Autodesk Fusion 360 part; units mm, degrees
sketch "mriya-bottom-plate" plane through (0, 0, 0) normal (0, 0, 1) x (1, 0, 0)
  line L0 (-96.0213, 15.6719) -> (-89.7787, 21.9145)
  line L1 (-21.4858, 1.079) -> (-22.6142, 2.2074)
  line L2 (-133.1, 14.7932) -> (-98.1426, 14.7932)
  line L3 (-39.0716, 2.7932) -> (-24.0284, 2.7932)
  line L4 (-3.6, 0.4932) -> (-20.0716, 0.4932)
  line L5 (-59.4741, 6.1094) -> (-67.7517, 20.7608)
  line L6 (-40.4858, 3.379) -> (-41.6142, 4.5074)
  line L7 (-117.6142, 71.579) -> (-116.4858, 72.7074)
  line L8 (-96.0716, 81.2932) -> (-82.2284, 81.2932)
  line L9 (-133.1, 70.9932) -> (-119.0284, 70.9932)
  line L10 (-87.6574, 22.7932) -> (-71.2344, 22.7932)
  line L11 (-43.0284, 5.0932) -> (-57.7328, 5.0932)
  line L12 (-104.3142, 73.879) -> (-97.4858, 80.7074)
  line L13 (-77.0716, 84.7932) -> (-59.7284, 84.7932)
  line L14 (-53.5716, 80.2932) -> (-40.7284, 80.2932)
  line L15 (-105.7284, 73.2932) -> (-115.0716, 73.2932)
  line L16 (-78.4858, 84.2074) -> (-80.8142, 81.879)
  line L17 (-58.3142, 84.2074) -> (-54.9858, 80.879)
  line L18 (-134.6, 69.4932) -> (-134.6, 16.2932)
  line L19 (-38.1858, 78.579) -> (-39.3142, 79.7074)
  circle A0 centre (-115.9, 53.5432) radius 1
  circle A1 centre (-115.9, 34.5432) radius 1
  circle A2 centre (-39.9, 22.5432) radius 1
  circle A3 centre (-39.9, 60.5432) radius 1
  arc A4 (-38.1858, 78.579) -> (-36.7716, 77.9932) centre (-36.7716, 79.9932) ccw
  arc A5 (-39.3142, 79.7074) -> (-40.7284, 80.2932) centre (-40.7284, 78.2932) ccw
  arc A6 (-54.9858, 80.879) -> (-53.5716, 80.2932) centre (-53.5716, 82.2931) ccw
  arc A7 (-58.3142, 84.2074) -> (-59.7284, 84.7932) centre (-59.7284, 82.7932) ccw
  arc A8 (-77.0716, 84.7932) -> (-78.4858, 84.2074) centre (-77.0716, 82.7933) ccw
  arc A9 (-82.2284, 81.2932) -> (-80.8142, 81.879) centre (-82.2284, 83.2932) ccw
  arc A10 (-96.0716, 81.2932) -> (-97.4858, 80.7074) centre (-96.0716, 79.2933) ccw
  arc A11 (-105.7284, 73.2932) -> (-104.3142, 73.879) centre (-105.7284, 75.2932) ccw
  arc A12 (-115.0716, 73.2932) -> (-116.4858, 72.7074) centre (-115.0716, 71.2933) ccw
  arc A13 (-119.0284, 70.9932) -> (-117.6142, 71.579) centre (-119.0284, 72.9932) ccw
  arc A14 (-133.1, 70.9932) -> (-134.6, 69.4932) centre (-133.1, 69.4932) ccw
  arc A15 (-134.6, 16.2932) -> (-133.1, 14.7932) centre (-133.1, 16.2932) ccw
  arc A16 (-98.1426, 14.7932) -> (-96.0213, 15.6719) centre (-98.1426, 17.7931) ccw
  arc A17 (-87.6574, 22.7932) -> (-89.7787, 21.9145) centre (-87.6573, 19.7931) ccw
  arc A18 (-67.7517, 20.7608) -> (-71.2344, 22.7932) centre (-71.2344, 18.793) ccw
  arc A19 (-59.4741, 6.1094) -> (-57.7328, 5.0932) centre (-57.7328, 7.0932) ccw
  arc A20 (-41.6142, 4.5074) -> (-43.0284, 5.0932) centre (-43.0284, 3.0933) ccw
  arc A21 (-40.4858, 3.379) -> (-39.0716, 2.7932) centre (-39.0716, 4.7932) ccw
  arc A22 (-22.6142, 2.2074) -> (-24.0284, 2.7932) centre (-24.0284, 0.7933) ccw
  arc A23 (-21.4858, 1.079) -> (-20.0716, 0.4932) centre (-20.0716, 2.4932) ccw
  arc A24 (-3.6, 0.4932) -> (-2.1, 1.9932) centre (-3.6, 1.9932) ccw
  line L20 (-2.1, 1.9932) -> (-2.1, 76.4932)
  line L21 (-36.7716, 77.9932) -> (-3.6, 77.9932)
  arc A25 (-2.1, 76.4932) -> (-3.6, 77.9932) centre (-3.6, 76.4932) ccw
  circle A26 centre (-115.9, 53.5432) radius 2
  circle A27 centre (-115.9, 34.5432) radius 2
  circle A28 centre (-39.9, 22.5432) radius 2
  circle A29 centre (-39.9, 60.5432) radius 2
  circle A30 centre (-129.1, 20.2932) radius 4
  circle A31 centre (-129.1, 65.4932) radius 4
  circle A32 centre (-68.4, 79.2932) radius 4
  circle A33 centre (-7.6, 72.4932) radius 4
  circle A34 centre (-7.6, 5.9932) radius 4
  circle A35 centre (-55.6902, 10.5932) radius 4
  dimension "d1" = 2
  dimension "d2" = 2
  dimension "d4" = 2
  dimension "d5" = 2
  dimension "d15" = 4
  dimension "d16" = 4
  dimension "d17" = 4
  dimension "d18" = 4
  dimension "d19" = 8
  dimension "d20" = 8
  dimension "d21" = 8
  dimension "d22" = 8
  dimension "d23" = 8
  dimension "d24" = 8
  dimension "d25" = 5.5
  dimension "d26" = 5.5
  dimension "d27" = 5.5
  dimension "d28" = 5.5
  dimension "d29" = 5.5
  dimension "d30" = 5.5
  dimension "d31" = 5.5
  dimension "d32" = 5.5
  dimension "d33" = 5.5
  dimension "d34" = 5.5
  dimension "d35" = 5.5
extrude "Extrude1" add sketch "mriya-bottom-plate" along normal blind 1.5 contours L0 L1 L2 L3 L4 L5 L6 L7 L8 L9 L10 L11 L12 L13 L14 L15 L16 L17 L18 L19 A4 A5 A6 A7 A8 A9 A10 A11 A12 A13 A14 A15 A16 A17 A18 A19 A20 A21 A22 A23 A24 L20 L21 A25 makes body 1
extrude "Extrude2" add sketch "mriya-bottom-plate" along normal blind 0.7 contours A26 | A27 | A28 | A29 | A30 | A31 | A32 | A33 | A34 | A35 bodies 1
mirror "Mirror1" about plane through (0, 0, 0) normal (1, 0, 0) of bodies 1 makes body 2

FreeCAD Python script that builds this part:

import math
import FreeCAD as App
import Part
import Sketcher
from FreeCAD import Vector

doc = App.newDocument("Part")
body = doc.addObject("PartDesign::Body", "Body")
body.AllowCompound = True

sketch1 = body.newObject("Sketcher::SketchObject", "Sketch")
sketch1.AttachmentSupport = (doc.getObject("XY_Plane"), [""])
sketch1.MapMode = "FlatFace"
sketch1.addGeometry(Part.ArcOfCircle(Part.Circle(Vector(-98.1, 17.8, 0), Vector(0, 0, 1), 3), math.radians(-90), math.radians(-45)), False)
sketch1.addGeometry(Part.LineSegment(Vector(-96, 15.7, 0), Vector(-89.8, 21.9, 0)), False)
sketch1.addGeometry(Part.ArcOfCircle(Part.Circle(Vector(-87.7, 19.8, 0), Vector(0, 0, 1), 3), math.radians(90), math.radians(135)), False)
sketch1.addGeometry(Part.LineSegment(Vector(-87.7, 22.8, 0), Vector(-71.2, 22.8, 0)), False)
sketch1.addGeometry(Part.ArcOfCircle(Part.Circle(Vector(-71.2, 18.8, 0), Vector(0, 0, 1), 4), math.radians(29), math.radians(90)), False)
sketch1.addGeometry(Part.LineSegment(Vector(-67.8, 20.8, 0), Vector(-59.5, 6.1, 0)), False)
sketch1.addGeometry(Part.ArcOfCircle(Part.Circle(Vector(-57.7, 7.1, 0), Vector(0, 0, 1), 2), math.radians(-151), math.radians(-90)), False)
sketch1.addGeometry(Part.LineSegment(Vector(-57.7, 5.1, 0), Vector(-43, 5.1, 0)), False)
sketch1.addGeometry(Part.ArcOfCircle(Part.Circle(Vector(-43, 3.1, 0), Vector(0, 0, 1), 2), math.radians(45), math.radians(90)), False)
sketch1.addGeometry(Part.LineSegment(Vector(-41.6, 4.5, 0), Vector(-40.5, 3.4, 0)), False)
sketch1.addGeometry(Part.ArcOfCircle(Part.Circle(Vector(-39.1, 4.8, 0), Vector(0, 0, 1), 2), math.radians(-135), math.radians(-90)), False)
sketch1.addGeometry(Part.LineSegment(Vector(-39.1, 2.8, 0), Vector(-24, 2.8, 0)), False)
sketch1.addGeometry(Part.ArcOfCircle(Part.Circle(Vector(-24, 0.8, 0), Vector(0, 0, 1), 2), math.radians(45), math.radians(90)), False)
sketch1.addGeometry(Part.LineSegment(Vector(-22.6, 2.2, 0), Vector(-21.5, 1.1, 0)), False)
sketch1.addGeometry(Part.ArcOfCircle(Part.Circle(Vector(-20.1, 2.5, 0), Vector(0, 0, 1), 2), math.radians(-135), math.radians(-90)), False)
sketch1.addGeometry(Part.LineSegment(Vector(-20.1, 0.5, 0), Vector(-3.6, 0.5, 0)), False)
sketch1.addGeometry(Part.ArcOfCircle(Part.Circle(Vector(-3.6, 2, 0), Vector(0, 0, 1), 1.5), math.radians(-90), math.radians(0)), False)
sketch1.addGeometry(Part.LineSegment(Vector(-2.1, 2, 0), Vector(-2.1, 76.5, 0)), False)
sketch1.addGeometry(Part.ArcOfCircle(Part.Circle(Vector(-3.6, 76.5, 0), Vector(0, 0, 1), 1.5), math.radians(0), math.radians(90)), False)
sketch1.addGeometry(Part.LineSegment(Vector(-3.6, 78, 0), Vector(-36.8, 78, 0)), False)
sketch1.addGeometry(Part.ArcOfCircle(Part.Circle(Vector(-36.8, 80, 0), Vector(0, 0, 1), 2), math.radians(-135), math.radians(-90)), False)
sketch1.addGeometry(Part.LineSegment(Vector(-38.2, 78.6, 0), Vector(-39.3, 79.7, 0)), False)
sketch1.addGeometry(Part.ArcOfCircle(Part.Circle(Vector(-40.7, 78.3, 0), Vector(0, 0, 1), 2), math.radians(45), math.radians(90)), False)
sketch1.addGeometry(Part.LineSegment(Vector(-40.7, 80.3, 0), Vector(-53.6, 80.3, 0)), False)
sketch1.addGeometry(Part.ArcOfCircle(Part.Circle(Vector(-53.6, 82.3, 0), Vector(0, 0, 1), 2), math.radians(-135), math.radians(-90)), False)
sketch1.addGeometry(Part.LineSegment(Vector(-55, 80.9, 0), Vector(-58.3, 84.2, 0)), False)
sketch1.addGeometry(Part.ArcOfCircle(Part.Circle(Vector(-59.7, 82.8, 0), Vector(0, 0, 1), 2), math.radians(45), math.radians(90)), False)
sketch1.addGeometry(Part.LineSegment(Vector(-59.7, 84.8, 0), Vector(-77.1, 84.8, 0)), False)
sketch1.addGeometry(Part.ArcOfCircle(Part.Circle(Vector(-77.1, 82.8, 0), Vector(0, 0, 1), 2), math.radians(90), math.radians(135)), False)
sketch1.addGeometry(Part.LineSegment(Vector(-78.5, 84.2, 0), Vector(-80.8, 81.9, 0)), False)
sketch1.addGeometry(Part.ArcOfCircle(Part.Circle(Vector(-82.2, 83.3, 0), Vector(0, 0, 1), 2), math.radians(-90), math.radians(-45)), False)
sketch1.addGeometry(Part.LineSegment(Vector(-82.2, 81.3, 0), Vector(-96.1, 81.3, 0)), False)
sketch1.addGeometry(Part.ArcOfCircle(Part.Circle(Vector(-96.1, 79.3, 0), Vector(0, 0, 1), 2), math.radians(90), math.radians(135)), False)
sketch1.addGeometry(Part.LineSegment(Vector(-97.5, 80.7, 0), Vector(-104.3, 73.9, 0)), False)
sketch1.addGeometry(Part.ArcOfCircle(Part.Circle(Vector(-105.7, 75.3, 0), Vector(0, 0, 1), 2), math.radians(-90), math.radians(-45)), False)
sketch1.addGeometry(Part.LineSegment(Vector(-105.7, 73.3, 0), Vector(-115.1, 73.3, 0)), False)
sketch1.addGeometry(Part.ArcOfCircle(Part.Circle(Vector(-115.1, 71.3, 0), Vector(0, 0, 1), 2), math.radians(90), math.radians(135)), False)
sketch1.addGeometry(Part.LineSegment(Vector(-116.5, 72.7, 0), Vector(-117.6, 71.6, 0)), False)
sketch1.addGeometry(Part.ArcOfCircle(Part.Circle(Vector(-119, 73, 0), Vector(0, 0, 1), 2), math.radians(-90), math.radians(-45)), False)
sketch1.addGeometry(Part.LineSegment(Vector(-119, 71, 0), Vector(-133.1, 71, 0)), False)
sketch1.addGeometry(Part.ArcOfCircle(Part.Circle(Vector(-133.1, 69.5, 0), Vector(0, 0, 1), 1.5), math.radians(90), math.radians(180)), False)
sketch1.addGeometry(Part.LineSegment(Vector(-134.6, 69.5, 0), Vector(-134.6, 16.3, 0)), False)
sketch1.addGeometry(Part.ArcOfCircle(Part.Circle(Vector(-133.1, 16.3, 0), Vector(0, 0, 1), 1.5), math.radians(180), math.radians(270)), False)
sketch1.addGeometry(Part.LineSegment(Vector(-133.1, 14.8, 0), Vector(-98.1, 14.8, 0)), False)
sketch1.addGeometry(Part.Circle(Vector(-129.1, 20.3, 0), Vector(0, 0, 1), 4), False)
sketch1.addGeometry(Part.Circle(Vector(-115.9, 34.5, 0), Vector(0, 0, 1), 2), False)
sketch1.addGeometry(Part.Circle(Vector(-55.7, 10.6, 0), Vector(0, 0, 1), 4), False)
sketch1.addGeometry(Part.Circle(Vector(-7.6, 6, 0), Vector(0, 0, 1), 4), False)
sketch1.addGeometry(Part.Circle(Vector(-39.9, 22.5, 0), Vector(0, 0, 1), 2), False)
sketch1.addGeometry(Part.Circle(Vector(-115.9, 53.5, 0), Vector(0, 0, 1), 2), False)
sketch1.addGeometry(Part.Circle(Vector(-129.1, 65.5, 0), Vector(0, 0, 1), 4), False)
sketch1.addGeometry(Part.Circle(Vector(-68.4, 79.3, 0), Vector(0, 0, 1), 4), False)
sketch1.addGeometry(Part.Circle(Vector(-39.9, 60.5, 0), Vector(0, 0, 1), 2), False)
sketch1.addGeometry(Part.Circle(Vector(-7.6, 72.5, 0), Vector(0, 0, 1), 4), False)
sketch1.addConstraint(Sketcher.Constraint("Tangent", 0, 2, 1, 1))
sketch1.addConstraint(Sketcher.Constraint("Tangent", 1, 2, 2, 2))
sketch1.addConstraint(Sketcher.Constraint("Tangent", 2, 1, 3, 1))
sketch1.addConstraint(Sketcher.Constraint("Tangent", 3, 2, 4, 2))
sketch1.addConstraint(Sketcher.Constraint("Tangent", 4, 1, 5, 1))
sketch1.addConstraint(Sketcher.Constraint("Tangent", 5, 2, 6, 1))
sketch1.addConstraint(Sketcher.Constraint("Tangent", 6, 2, 7, 1))
sketch1.addConstraint(Sketcher.Constraint("Tangent", 7, 2, 8, 2))
sketch1.addConstraint(Sketcher.Constraint("Tangent", 8, 1, 9, 1))
sketch1.addConstraint(Sketcher.Constraint("Tangent", 9, 2, 10, 1))
sketch1.addConstraint(Sketcher.Constraint("Tangent", 10, 2, 11, 1))
sketch1.addConstraint(Sketcher.Constraint("Tangent", 11, 2, 12, 2))
sketch1.addConstraint(Sketcher.Constraint("Tangent", 12, 1, 13, 1))
sketch1.addConstraint(Sketcher.Constraint("Tangent", 13, 2, 14, 1))
sketch1.addConstraint(Sketcher.Constraint("Tangent", 14, 2, 15, 1))
sketch1.addConstraint(Sketcher.Constraint("Tangent", 15, 2, 16, 1))
sketch1.addConstraint(Sketcher.Constraint("Tangent", 16, 2, 17, 1))
sketch1.addConstraint(Sketcher.Constraint("Tangent", 17, 2, 18, 1))
sketch1.addConstraint(Sketcher.Constraint("Tangent", 18, 2, 19, 1))
sketch1.addConstraint(Sketcher.Constraint("Tangent", 19, 2, 20, 2))
sketch1.addConstraint(Sketcher.Constraint("Tangent", 20, 1, 21, 1))
sketch1.addConstraint(Sketcher.Constraint("Tangent", 21, 2, 22, 1))
sketch1.addConstraint(Sketcher.Constraint("Tangent", 22, 2, 23, 1))
sketch1.addConstraint(Sketcher.Constraint("Tangent", 23, 2, 24, 2))
sketch1.addConstraint(Sketcher.Constraint("Tangent", 24, 1, 25, 1))
sketch1.addConstraint(Sketcher.Constraint("Tangent", 25, 2, 26, 1))
sketch1.addConstraint(Sketcher.Constraint("Tangent", 26, 2, 27, 1))
sketch1.addConstraint(Sketcher.Constraint("Tangent", 27, 2, 28, 1))
sketch1.addConstraint(Sketcher.Constraint("Tangent", 28, 2, 29, 1))
sketch1.addConstraint(Sketcher.Constraint("Tangent", 29, 2, 30, 2))
sketch1.addConstraint(Sketcher.Constraint("Tangent", 30, 1, 31, 1))
sketch1.addConstraint(Sketcher.Constraint("Tangent", 31, 2, 32, 1))
sketch1.addConstraint(Sketcher.Constraint("Tangent", 32, 2, 33, 1))
sketch1.addConstraint(Sketcher.Constraint("Tangent", 33, 2, 34, 2))
sketch1.addConstraint(Sketcher.Constraint("Tangent", 34, 1, 35, 1))
sketch1.addConstraint(Sketcher.Constraint("Tangent", 35, 2, 36, 1))
sketch1.addConstraint(Sketcher.Constraint("Tangent", 36, 2, 37, 1))
sketch1.addConstraint(Sketcher.Constraint("Tangent", 37, 2, 38, 2))
sketch1.addConstraint(Sketcher.Constraint("Tangent", 38, 1, 39, 1))
sketch1.addConstraint(Sketcher.Constraint("Tangent", 39, 2, 40, 1))
sketch1.addConstraint(Sketcher.Constraint("Tangent", 40, 2, 41, 1))
sketch1.addConstraint(Sketcher.Constraint("Tangent", 41, 2, 42, 1))
sketch1.addConstraint(Sketcher.Constraint("Tangent", 42, 2, 43, 1))
sketch1.addConstraint(Sketcher.Constraint("Tangent", 43, 2, 0, 1))
sketch1.addConstraint(Sketcher.Constraint("Horizontal", 3))
sketch1.addConstraint(Sketcher.Constraint("Horizontal", 7))
sketch1.addConstraint(Sketcher.Constraint("Horizontal", 11))
sketch1.addConstraint(Sketcher.Constraint("Horizontal", 15))
sketch1.addConstraint(Sketcher.Constraint("Vertical", 17))
sketch1.addConstraint(Sketcher.Constraint("Horizontal", 19))
sketch1.addConstraint(Sketcher.Constraint("Horizontal", 23))
sketch1.addConstraint(Sketcher.Constraint("Horizontal", 27))
sketch1.addConstraint(Sketcher.Constraint("Horizontal", 31))
sketch1.addConstraint(Sketcher.Constraint("Horizontal", 35))
sketch1.addConstraint(Sketcher.Constraint("Horizontal", 39))
sketch1.addConstraint(Sketcher.Constraint("Vertical", 41))
sketch1.addConstraint(Sketcher.Constraint("Horizontal", 43))
sketch1.addConstraint(Sketcher.Constraint("Equal", 6, 8))
sketch1.addConstraint(Sketcher.Constraint("Equal", 8, 10))
sketch1.addConstraint(Sketcher.Constraint("Equal", 10, 12))
sketch1.addConstraint(Sketcher.Constraint("Equal", 12, 14))
sketch1.addConstraint(Sketcher.Constraint("Equal", 16, 18))
sketch1.addConstraint(Sketcher.Constraint("Equal", 14, 20))
sketch1.addConstraint(Sketcher.Constraint("Equal", 20, 22))
sketch1.addConstraint(Sketcher.Constraint("Equal", 22, 24))
sketch1.addConstraint(Sketcher.Constraint("Equal", 24, 26))
sketch1.addConstraint(Sketcher.Constraint("Equal", 26, 28))
sketch1.addConstraint(Sketcher.Constraint("Equal", 28, 30))
sketch1.addConstraint(Sketcher.Constraint("Equal", 30, 32))
sketch1.addConstraint(Sketcher.Constraint("Equal", 32, 34))
sketch1.addConstraint(Sketcher.Constraint("Equal", 34, 36))
sketch1.addConstraint(Sketcher.Constraint("Equal", 36, 38))
sketch1.addConstraint(Sketcher.Constraint("Equal", 18, 40))
sketch1.addConstraint(Sketcher.Constraint("Equal", 40, 42))
sketch1.addConstraint(Sketcher.Constraint("Equal", 4, 44))
sketch1.addConstraint(Sketcher.Constraint("Equal", 38, 45))
sketch1.addConstraint(Sketcher.Constraint("Equal", 44, 46))
sketch1.addConstraint(Sketcher.Constraint("Equal", 46, 47))
sketch1.addConstraint(Sketcher.Constraint("Equal", 45, 48))
sketch1.addConstraint(Sketcher.Constraint("Equal", 48, 49))
sketch1.addConstraint(Sketcher.Constraint("Equal", 47, 50))
sketch1.addConstraint(Sketcher.Constraint("Equal", 50, 51))
sketch1.addConstraint(Sketcher.Constraint("Equal", 49, 52))
sketch1.addConstraint(Sketcher.Constraint("Equal", 51, 53))
sketch1.addConstraint(Sketcher.Constraint("Perpendicular", 1, 9))
sketch1.addConstraint(Sketcher.Constraint("Parallel", 9, 13))
sketch1.addConstraint(Sketcher.Constraint("Parallel", 13, 21))
sketch1.addConstraint(Sketcher.Constraint("Parallel", 21, 25))
sketch1.addConstraint(Sketcher.Constraint("Perpendicular", 25, 29))
sketch1.addConstraint(Sketcher.Constraint("Parallel", 29, 33))
sketch1.addConstraint(Sketcher.Constraint("Parallel", 33, 37))
sketch1.addConstraint(Sketcher.Constraint("Horizontal", 32, 3, 51, 3))
sketch1.addConstraint(Sketcher.Constraint("Horizontal", 25, 2, 28, 2))
sketch1.addConstraint(Sketcher.Constraint("Vertical", 45, 3, 49, 3))
sketch1.addConstraint(Sketcher.Constraint("Vertical", 44, 3, 50, 3))
sketch1.addConstraint(Sketcher.Constraint("Vertical", 48, 3, 52, 3))
sketch1.addConstraint(Sketcher.Constraint("Vertical", 47, 3, 53, 3))
sketch1.addConstraint(Sketcher.Constraint("Equal", 9, 13))
sketch1.addConstraint(Sketcher.Constraint("Equal", 13, 21))
sketch1.addConstraint(Sketcher.Constraint("Equal", 21, 37))
sketch1.addConstraint(Sketcher.Constraint("Diameter", 44, 8.0))
sketch1.addConstraint(Sketcher.Constraint("Diameter", 45, 4.0))
sketch1.addConstraint(Sketcher.Constraint("Radius", 0, 3.0))
sketch1.addConstraint(Sketcher.Constraint("Radius", 2, 3.0))
sketch1.addConstraint(Sketcher.Constraint("Radius", 16, 1.5))
sketch1.addConstraint(Sketcher.Constraint("DistanceY", 17, 1, 17, 2, 74.5))
sketch1.addConstraint(Sketcher.Constraint("DistanceY", 41, 2, 41, 1, 53.2))
sketch1.addConstraint(Sketcher.Constraint("DistanceX", 16, 3, -1, 1, 3.6))
sketch1.addConstraint(Sketcher.Constraint("DistanceX", 40, 3, -1, 1, 133.1))
sketch1.addConstraint(Sketcher.Constraint("DistanceX", 44, 3, -1, 1, 129.1))
sketch1.addConstraint(Sketcher.Constraint("DistanceX", 45, 3, -1, 1, 115.9))
sketch1.addConstraint(Sketcher.Constraint("DistanceX", 47, 3, -1, 1, 7.6))
sketch1.addConstraint(Sketcher.Constraint("DistanceX", 48, 3, -1, 1, 39.9))
sketch1.addConstraint(Sketcher.Constraint("DistanceX", 51, 3, -1, 1, 68.4))
sketch1.addConstraint(Sketcher.Constraint("DistanceX", 3, 1, 3, 2, 16.423))
sketch1.addConstraint(Sketcher.Constraint("Distance", 5, 16.828))
sketch1.addConstraint(Sketcher.Constraint("Distance", 25, 4.707))
sketch1.addConstraint(Sketcher.Constraint("DistanceX", 7, 1, 7, 2, 14.7044))
sketch1.addConstraint(Sketcher.Constraint("DistanceX", 11, 1, 11, 2, 15.0432))
sketch1.addConstraint(Sketcher.Constraint("DistanceX", 15, 1, 15, 2, 16.4716))
sketch1.addConstraint(Sketcher.Constraint("DistanceX", 19, 2, 19, 1, 33.1716))
sketch1.addConstraint(Sketcher.Constraint("DistanceX", 23, 2, 23, 1, 12.8432))
sketch1.addConstraint(Sketcher.Constraint("DistanceX", 27, 2, 27, 1, 17.3432))
sketch1.addConstraint(Sketcher.Constraint("DistanceX", 31, 2, 31, 1, 13.8432))
sketch1.addConstraint(Sketcher.Constraint("DistanceX", 35, 2, 35, 1, 9.3432))
sketch1.addConstraint(Sketcher.Constraint("DistanceX", 39, 2, 39, 1, 14.0716))
sketch1.addConstraint(Sketcher.Constraint("DistanceX", 43, 1, 43, 2, 34.9574))
sketch1.addConstraint(Sketcher.Constraint("DistanceY", -1, 1, 0, 3, 17.793))
sketch1.addConstraint(Sketcher.Constraint("DistanceY", -1, 1, 2, 3, 19.793))
sketch1.addConstraint(Sketcher.Constraint("DistanceY", -1, 1, 29, 2, 81.879))
sketch1.addConstraint(Sketcher.Constraint("DistanceY", -1, 1, 44, 3, 20.2932))
sketch1.addConstraint(Sketcher.Constraint("DistanceY", -1, 1, 45, 3, 34.5432))
sketch1.addConstraint(Sketcher.Constraint("DistanceX", 46, 3, -1, 1, 55.6902))
sketch1.addConstraint(Sketcher.Constraint("DistanceY", -1, 1, 46, 3, 10.5932))
sketch1.addConstraint(Sketcher.Constraint("DistanceY", -1, 1, 47, 3, 5.9932))
sketch1.addConstraint(Sketcher.Constraint("DistanceY", -1, 1, 48, 3, 22.5432))
sketch1.addConstraint(Sketcher.Constraint("DistanceY", -1, 1, 49, 3, 53.5432))
sketch1.addConstraint(Sketcher.Constraint("DistanceY", -1, 1, 50, 3, 65.4932))
sketch1.addConstraint(Sketcher.Constraint("DistanceY", -1, 1, 52, 3, 60.5432))
sketch1.addConstraint(Sketcher.Constraint("DistanceY", -1, 1, 53, 3, 72.4932))
pad1 = body.newObject("PartDesign::Pad", "Pad")
pad1.Profile = sketch1
pad1.Length = 1.5

sketch2 = body.newObject("Sketcher::SketchObject", "Sketch001")
sketch2.AttachmentSupport = (doc.getObject("XY_Plane"), [""])
sketch2.MapMode = "FlatFace"
sketch2.addGeometry(Part.Circle(Vector(-115.9, 53.5, 0), Vector(0, 0, 1), 2), False)
sketch2.addGeometry(Part.Circle(Vector(-115.9, 53.5, 0), Vector(0, 0, 1), 1), False)
sketch2.addGeometry(Part.Circle(Vector(-115.9, 34.5, 0), Vector(0, 0, 1), 2), False)
sketch2.addGeometry(Part.Circle(Vector(-115.9, 34.5, 0), Vector(0, 0, 1), 1), False)
sketch2.addGeometry(Part.Circle(Vector(-39.9, 22.5, 0), Vector(0, 0, 1), 2), False)
sketch2.addGeometry(Part.Circle(Vector(-39.9, 22.5, 0), Vector(0, 0, 1), 1), False)
sketch2.addGeometry(Part.Circle(Vector(-39.9, 60.5, 0), Vector(0, 0, 1), 2), False)
sketch2.addGeometry(Part.Circle(Vector(-39.9, 60.5, 0), Vector(0, 0, 1), 1), False)
sketch2.addGeometry(Part.Circle(Vector(-129.1, 20.3, 0), Vector(0, 0, 1), 4), False)
sketch2.addGeometry(Part.Circle(Vector(-129.1, 65.5, 0), Vector(0, 0, 1), 4), False)
sketch2.addGeometry(Part.Circle(Vector(-68.4, 79.3, 0), Vector(0, 0, 1), 4), False)
sketch2.addGeometry(Part.Circle(Vector(-7.6, 72.5, 0), Vector(0, 0, 1), 4), False)
sketch2.addGeometry(Part.Circle(Vector(-7.6, 6, 0), Vector(0, 0, 1), 4), False)
sketch2.addGeometry(Part.Circle(Vector(-55.7, 10.6, 0), Vector(0, 0, 1), 4), False)
sketch2.addConstraint(Sketcher.Constraint("Coincident", 1, 3, 0, 3))
sketch2.addConstraint(Sketcher.Constraint("Coincident", 3, 3, 2, 3))
sketch2.addConstraint(Sketcher.Constraint("Coincident", 5, 3, 4, 3))
sketch2.addConstraint(Sketcher.Constraint("Coincident", 7, 3, 6, 3))
sketch2.addConstraint(Sketcher.Constraint("Equal", 0, 2))
sketch2.addConstraint(Sketcher.Constraint("Equal", 1, 3))
sketch2.addConstraint(Sketcher.Constraint("Equal", 2, 4))
sketch2.addConstraint(Sketcher.Constraint("Equal", 3, 5))
sketch2.addConstraint(Sketcher.Constraint("Equal", 4, 6))
sketch2.addConstraint(Sketcher.Constraint("Equal", 5, 7))
sketch2.addConstraint(Sketcher.Constraint("Equal", 8, 9))
sketch2.addConstraint(Sketcher.Constraint("Equal", 9, 10))
sketch2.addConstraint(Sketcher.Constraint("Equal", 10, 11))
sketch2.addConstraint(Sketcher.Constraint("Equal", 11, 12))
sketch2.addConstraint(Sketcher.Constraint("Equal", 12, 13))
sketch2.addConstraint(Sketcher.Constraint("Vertical", 1, 3, 2, 3))
sketch2.addConstraint(Sketcher.Constraint("Vertical", 5, 3, 6, 3))
sketch2.addConstraint(Sketcher.Constraint("Vertical", 8, 3, 9, 3))
sketch2.addConstraint(Sketcher.Constraint("Vertical", 11, 3, 12, 3))
sketch2.addConstraint(Sketcher.Constraint("Diameter", 0, 4.0))
sketch2.addConstraint(Sketcher.Constraint("Diameter", 1, 2.0))
sketch2.addConstraint(Sketcher.Constraint("Diameter", 8, 8.0))
sketch2.addConstraint(Sketcher.Constraint("DistanceY", 2, 3, 0, 3, 19.0))
sketch2.addConstraint(Sketcher.Constraint("DistanceX", 2, 3, 4, 3, 76.0))
sketch2.addConstraint(Sketcher.Constraint("DistanceY", 4, 3, 2, 3, 12.0))
sketch2.addConstraint(Sketcher.Constraint("DistanceY", 4, 3, 6, 3, 38.0))
sketch2.addConstraint(Sketcher.Constraint("DistanceX", 0, 3, -1, 1, 115.9))
sketch2.addConstraint(Sketcher.Constraint("DistanceX", 8, 3, -1, 1, 129.1))
sketch2.addConstraint(Sketcher.Constraint("DistanceX", 10, 3, -1, 1, 68.4))
sketch2.addConstraint(Sketcher.Constraint("DistanceX", 11, 3, -1, 1, 7.6))
sketch2.addConstraint(Sketcher.Constraint("DistanceY", 8, 3, 9, 3, 45.2))
sketch2.addConstraint(Sketcher.Constraint("DistanceY", 9, 3, 10, 3, 13.8))
sketch2.addConstraint(Sketcher.Constraint("DistanceY", 11, 3, 10, 3, 6.8))
sketch2.addConstraint(Sketcher.Constraint("DistanceY", 12, 3, 11, 3, 66.5))
sketch2.addConstraint(Sketcher.Constraint("DistanceY", 12, 3, 13, 3, 4.6))
sketch2.addConstraint(Sketcher.Constraint("DistanceY", 8, 3, 2, 3, 14.25))
sketch2.addConstraint(Sketcher.Constraint("DistanceY", -1, 1, 0, 3, 53.5432))
sketch2.addConstraint(Sketcher.Constraint("DistanceX", 13, 3, -1, 1, 55.6902))
pad2 = body.newObject("PartDesign::Pad", "Pad001")
pad2.Profile = sketch2
pad2.Length = 0.7
doc.recompute()

mirrored = body.newObject("PartDesign::Mirrored", "Mirrored")
mirrored.TransformMode = "Transform body"
mirrored.MirrorPlane = (doc.getObject("YZ_Plane"), [""])
body.Tip = mirrored

doc.recompute()
